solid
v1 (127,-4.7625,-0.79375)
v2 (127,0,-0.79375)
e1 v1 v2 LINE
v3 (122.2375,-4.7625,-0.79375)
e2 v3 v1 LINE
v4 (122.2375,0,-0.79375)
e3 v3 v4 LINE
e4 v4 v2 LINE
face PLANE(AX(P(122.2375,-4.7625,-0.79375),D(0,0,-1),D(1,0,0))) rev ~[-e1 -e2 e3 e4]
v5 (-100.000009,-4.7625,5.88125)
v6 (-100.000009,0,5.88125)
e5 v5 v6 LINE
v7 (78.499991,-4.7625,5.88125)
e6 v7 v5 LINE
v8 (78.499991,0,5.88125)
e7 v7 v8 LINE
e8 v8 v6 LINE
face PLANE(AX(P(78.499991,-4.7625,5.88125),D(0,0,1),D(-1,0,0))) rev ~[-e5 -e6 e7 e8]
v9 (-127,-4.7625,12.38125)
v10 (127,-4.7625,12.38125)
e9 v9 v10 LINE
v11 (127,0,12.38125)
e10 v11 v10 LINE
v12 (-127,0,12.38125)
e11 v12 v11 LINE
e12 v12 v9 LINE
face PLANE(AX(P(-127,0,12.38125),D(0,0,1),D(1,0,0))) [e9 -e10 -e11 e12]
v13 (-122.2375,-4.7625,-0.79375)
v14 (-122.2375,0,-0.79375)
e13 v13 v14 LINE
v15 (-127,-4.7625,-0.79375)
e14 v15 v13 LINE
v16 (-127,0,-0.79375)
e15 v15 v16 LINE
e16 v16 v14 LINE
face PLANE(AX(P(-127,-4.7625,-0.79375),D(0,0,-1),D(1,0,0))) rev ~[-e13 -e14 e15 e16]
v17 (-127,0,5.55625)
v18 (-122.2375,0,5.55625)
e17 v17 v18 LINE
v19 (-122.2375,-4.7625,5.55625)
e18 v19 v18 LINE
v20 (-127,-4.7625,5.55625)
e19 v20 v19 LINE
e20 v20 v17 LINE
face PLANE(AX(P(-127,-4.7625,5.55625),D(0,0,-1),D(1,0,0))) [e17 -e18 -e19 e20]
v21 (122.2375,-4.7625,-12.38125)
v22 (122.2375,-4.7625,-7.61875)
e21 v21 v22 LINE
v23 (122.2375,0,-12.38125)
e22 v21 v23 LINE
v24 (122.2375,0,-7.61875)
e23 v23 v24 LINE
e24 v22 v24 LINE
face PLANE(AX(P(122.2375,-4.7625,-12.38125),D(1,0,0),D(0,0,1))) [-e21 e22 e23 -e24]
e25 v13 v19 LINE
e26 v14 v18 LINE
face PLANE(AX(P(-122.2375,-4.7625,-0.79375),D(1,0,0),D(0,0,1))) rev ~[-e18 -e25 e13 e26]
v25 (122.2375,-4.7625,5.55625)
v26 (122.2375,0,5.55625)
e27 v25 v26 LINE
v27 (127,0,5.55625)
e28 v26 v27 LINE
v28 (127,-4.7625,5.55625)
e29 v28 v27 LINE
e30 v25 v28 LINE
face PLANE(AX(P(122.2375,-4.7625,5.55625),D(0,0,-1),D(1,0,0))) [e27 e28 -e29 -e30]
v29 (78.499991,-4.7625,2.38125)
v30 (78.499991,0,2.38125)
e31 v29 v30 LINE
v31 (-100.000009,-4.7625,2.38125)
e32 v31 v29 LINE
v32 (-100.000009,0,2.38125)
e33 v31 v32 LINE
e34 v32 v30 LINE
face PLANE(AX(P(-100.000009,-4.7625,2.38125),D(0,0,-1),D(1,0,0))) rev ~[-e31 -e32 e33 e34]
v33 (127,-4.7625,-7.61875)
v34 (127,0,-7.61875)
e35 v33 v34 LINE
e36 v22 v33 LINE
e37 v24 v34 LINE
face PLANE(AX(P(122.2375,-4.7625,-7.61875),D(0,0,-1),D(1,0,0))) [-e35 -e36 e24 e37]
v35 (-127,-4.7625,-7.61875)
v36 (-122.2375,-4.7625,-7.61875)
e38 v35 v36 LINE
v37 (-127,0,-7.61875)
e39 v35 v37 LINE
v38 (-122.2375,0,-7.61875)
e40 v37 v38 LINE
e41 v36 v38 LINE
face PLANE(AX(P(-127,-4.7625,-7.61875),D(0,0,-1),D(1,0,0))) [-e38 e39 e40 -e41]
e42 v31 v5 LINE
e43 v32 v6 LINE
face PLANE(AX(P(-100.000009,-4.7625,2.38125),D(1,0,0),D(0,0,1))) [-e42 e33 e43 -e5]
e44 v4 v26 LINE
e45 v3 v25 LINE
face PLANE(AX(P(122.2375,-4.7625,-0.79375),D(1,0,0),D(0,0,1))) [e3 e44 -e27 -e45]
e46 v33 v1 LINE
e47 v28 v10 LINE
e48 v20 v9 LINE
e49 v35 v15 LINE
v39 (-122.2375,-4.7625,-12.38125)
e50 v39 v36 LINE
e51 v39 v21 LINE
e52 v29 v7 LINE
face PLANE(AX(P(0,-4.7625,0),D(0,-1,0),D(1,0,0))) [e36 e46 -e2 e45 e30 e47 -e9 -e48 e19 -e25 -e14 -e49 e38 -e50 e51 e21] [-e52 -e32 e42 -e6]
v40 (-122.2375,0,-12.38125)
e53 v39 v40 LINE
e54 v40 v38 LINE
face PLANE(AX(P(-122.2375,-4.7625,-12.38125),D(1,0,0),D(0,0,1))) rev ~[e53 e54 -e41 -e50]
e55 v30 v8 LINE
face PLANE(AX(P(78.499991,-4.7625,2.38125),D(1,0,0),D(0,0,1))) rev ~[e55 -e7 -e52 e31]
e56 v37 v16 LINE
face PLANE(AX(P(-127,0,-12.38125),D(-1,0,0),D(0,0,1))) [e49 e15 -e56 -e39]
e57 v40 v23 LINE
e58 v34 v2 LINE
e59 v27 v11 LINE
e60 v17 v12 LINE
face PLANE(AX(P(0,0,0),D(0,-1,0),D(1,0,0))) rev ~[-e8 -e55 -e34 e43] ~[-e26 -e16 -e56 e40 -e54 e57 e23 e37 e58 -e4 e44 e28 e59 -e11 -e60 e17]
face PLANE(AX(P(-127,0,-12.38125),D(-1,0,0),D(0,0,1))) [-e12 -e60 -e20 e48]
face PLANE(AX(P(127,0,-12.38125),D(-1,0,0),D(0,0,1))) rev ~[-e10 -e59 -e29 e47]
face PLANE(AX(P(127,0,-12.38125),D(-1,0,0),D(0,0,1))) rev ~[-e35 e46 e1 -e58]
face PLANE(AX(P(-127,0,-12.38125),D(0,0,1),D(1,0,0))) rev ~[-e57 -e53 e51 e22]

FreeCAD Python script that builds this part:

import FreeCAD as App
import Part
import Sketcher
Q = App.Units.Quantity

doc = App.newDocument("Part")
body = doc.addObject("PartDesign::Body", "Body")

sketch1 = body.newObject("Sketcher::SketchObject", "Sketch")
sketch1.AttachmentSupport = (doc.getObject("XZ_Plane"), [""])
sketch1.MapMode = "FlatFace"
sketch1.addGeometry([
    Part.LineSegment(App.Vector(-127, 12, 0), App.Vector(-127, -12, 0)),
    Part.LineSegment(App.Vector(-127, -12, 0), App.Vector(127, -12, 0)),
    Part.LineSegment(App.Vector(127, -12, 0), App.Vector(127, 12, 0)),
    Part.LineSegment(App.Vector(127, 12, 0), App.Vector(-127, 12, 0)),
], False)
sketch1.addConstraint([
    Sketcher.Constraint("Coincident", 0, 2, 1, 1),
    Sketcher.Constraint("Coincident", 1, 2, 2, 1),
    Sketcher.Constraint("Coincident", 2, 2, 3, 1),
    Sketcher.Constraint("Coincident", 3, 2, 0, 1),
    Sketcher.Constraint("Vertical", 0),
    Sketcher.Constraint("Horizontal", 1),
    Sketcher.Constraint("Vertical", 2),
    Sketcher.Constraint("Horizontal", 3),
    Sketcher.Constraint("Symmetric", 0, 2, 2, 2, -1, 1),
    Sketcher.Constraint("DistanceX", 1, 1, 1, 2, Q("10 in")),
    Sketcher.Constraint("DistanceY", 0, 2, 0, 1, 24.7625),
])
pad1 = body.newObject("PartDesign::Pad", "Pad")
pad1.Profile = sketch1
pad1.Length = Q("0.1875 in")

sketch2 = body.newObject("Sketcher::SketchObject", "Sketch001")
sketch2.AttachmentSupport = (doc.getObject("XZ_Plane"), [""])
sketch2.MapMode = "FlatFace"
sketch2.AttachmentOffset = App.Placement(App.Vector(0, 0, 0.1875 * 25.4), App.Rotation())
sketch2.addGeometry([
    Part.LineSegment(App.Vector(-127, 5.6, 0), App.Vector(-127, -0.8, 0)),
    Part.LineSegment(App.Vector(-127, -0.8, 0), App.Vector(-122.2, -0.8, 0)),
    Part.LineSegment(App.Vector(-122.2, -0.8, 0), App.Vector(-122.2, 5.6, 0)),
    Part.LineSegment(App.Vector(-122.2, 5.6, 0), App.Vector(-127, 5.6, 0)),
    Part.LineSegment(App.Vector(122.2, 5.6, 0), App.Vector(122.2, -0.8, 0)),
    Part.LineSegment(App.Vector(122.2, -0.8, 0), App.Vector(127, -0.8, 0)),
    Part.LineSegment(App.Vector(127, -0.8, 0), App.Vector(127, 5.6, 0)),
    Part.LineSegment(App.Vector(127, 5.6, 0), App.Vector(122.2, 5.6, 0)),
], False)
sketch2.addConstraint([
    Sketcher.Constraint("Coincident", 0, 2, 1, 1),
    Sketcher.Constraint("Coincident", 1, 2, 2, 1),
    Sketcher.Constraint("Coincident", 2, 2, 3, 1),
    Sketcher.Constraint("Coincident", 3, 2, 0, 1),
    Sketcher.Constraint("Coincident", 4, 2, 5, 1),
    Sketcher.Constraint("Coincident", 5, 2, 6, 1),
    Sketcher.Constraint("Coincident", 6, 2, 7, 1),
    Sketcher.Constraint("Coincident", 7, 2, 4, 1),
    Sketcher.Constraint("Vertical", 0),
    Sketcher.Constraint("Horizontal", 1),
    Sketcher.Constraint("Vertical", 2),
    Sketcher.Constraint("Horizontal", 3),
    Sketcher.Constraint("Vertical", 4),
    Sketcher.Constraint("Horizontal", 5),
    Sketcher.Constraint("Vertical", 6),
    Sketcher.Constraint("Horizontal", 7),
    Sketcher.Constraint("Symmetric", 1, 2, 4, 2, -2),
    Sketcher.Constraint("Symmetric", 3, 2, 6, 2, -2),
    Sketcher.Constraint("DistanceX", 0, 2, -1, 1, Q("5 in")),
    Sketcher.Constraint("DistanceY", 0, 2, 0, 1, Q("0.25 in")),
    Sketcher.Constraint("DistanceX", 1, 1, 1, 2, Q("0.1875 in")),
    Sketcher.Constraint("DistanceY", 0, 2, -1, 1, Q("0.03125 in")),
])
pocket1 = body.newObject("PartDesign::Pocket", "Pocket")
pocket1.Profile = sketch2
pocket1.Length = Q("1 in")

sketch3 = body.newObject("Sketcher::SketchObject", "Sketch002")
sketch3.AttachmentSupport = (doc.getObject("XZ_Plane"), [""])
sketch3.MapMode = "FlatFace"
sketch3.AttachmentOffset = App.Placement(App.Vector(0, 0, 0.1875 * 25.4), App.Rotation())
sketch3.addGeometry([
    Part.LineSegment(App.Vector(122.2, -7.6, 0), App.Vector(122.2, -12.4, 0)),
    Part.LineSegment(App.Vector(122.2, -12.4, 0), App.Vector(127, -12.4, 0)),
    Part.LineSegment(App.Vector(127, -12.4, 0), App.Vector(127, -7.6, 0)),
    Part.LineSegment(App.Vector(127, -7.6, 0), App.Vector(122.2, -7.6, 0)),
    Part.LineSegment(App.Vector(-127, -7.6, 0), App.Vector(-127, -12.4, 0)),
    Part.LineSegment(App.Vector(-127, -12.4, 0), App.Vector(-122.2, -12.4, 0)),
    Part.LineSegment(App.Vector(-122.2, -12.4, 0), App.Vector(-122.2, -7.6, 0)),
    Part.LineSegment(App.Vector(-122.2, -7.6, 0), App.Vector(-127, -7.6, 0)),
], False)
sketch3.addConstraint([
    Sketcher.Constraint("Coincident", 0, 2, 1, 1),
    Sketcher.Constraint("Coincident", 1, 2, 2, 1),
    Sketcher.Constraint("Coincident", 2, 2, 3, 1),
    Sketcher.Constraint("Coincident", 3, 2, 0, 1),
    Sketcher.Constraint("Coincident", 4, 2, 5, 1),
    Sketcher.Constraint("Coincident", 5, 2, 6, 1),
    Sketcher.Constraint("Coincident", 6, 2, 7, 1),
    Sketcher.Constraint("Coincident", 7, 2, 4, 1),
    Sketcher.Constraint("Vertical", 0),
    Sketcher.Constraint("Horizontal", 1),
    Sketcher.Constraint("Vertical", 2),
    Sketcher.Constraint("Horizontal", 3),
    Sketcher.Constraint("Vertical", 4),
    Sketcher.Constraint("Horizontal", 5),
    Sketcher.Constraint("Vertical", 6),
    Sketcher.Constraint("Horizontal", 7),
    Sketcher.Constraint("Symmetric", 1, 2, 4, 2, -2),
    Sketcher.Constraint("Symmetric", 3, 2, 6, 2, -2),
    Sketcher.Constraint("Equal", 7, 0),
    Sketcher.Constraint("DistanceX", -1, 1, 1, 2, Q("5 in")),
    Sketcher.Constraint("DistanceX", 1, 1, 1, 2, Q("0.1875 in")),
    Sketcher.Constraint("DistanceY", 0, 2, -1, 1, 12.38125),
])
pocket2 = body.newObject("PartDesign::Pocket", "Pocket001")
pocket2.Profile = sketch3
pocket2.Length = Q("1 in")

sketch4 = body.newObject("Sketcher::SketchObject", "Sketch003")
sketch4.AttachmentSupport = (doc.getObject("XZ_Plane"), [""])
sketch4.MapMode = "FlatFace"
sketch4.AttachmentOffset = App.Placement(App.Vector(0, 0, 0.1875 * 25.4), App.Rotation())
sketch4.addGeometry([
    Part.LineSegment(App.Vector(-100, 5.9, 0), App.Vector(-100, 2.4, 0)),
    Part.LineSegment(App.Vector(-100, 2.4, 0), App.Vector(78.5, 2.4, 0)),
    Part.LineSegment(App.Vector(78.5, 2.4, 0), App.Vector(78.5, 5.9, 0)),
    Part.LineSegment(App.Vector(78.5, 5.9, 0), App.Vector(-100, 5.9, 0)),
], False)
sketch4.addConstraint([
    Sketcher.Constraint("Coincident", 0, 2, 1, 1),
    Sketcher.Constraint("Coincident", 1, 2, 2, 1),
    Sketcher.Constraint("Coincident", 2, 2, 3, 1),
    Sketcher.Constraint("Coincident", 3, 2, 0, 1),
    Sketcher.Constraint("Vertical", 0),
    Sketcher.Constraint("Horizontal", 1),
    Sketcher.Constraint("Vertical", 2),
    Sketcher.Constraint("Horizontal", 3),
    Sketcher.Constraint("DistanceY", -1, 1, 0, 2, Q("0.09375 in")),
    Sketcher.Constraint("DistanceX", 1, 1, 1, 2, 178.5),
    Sketcher.Constraint("DistanceY", 0, 2, 0, 1, 3.5),
    Sketcher.Constraint("DistanceX", 0, 2, -1, 1, 100.000009),
])
pocket3 = body.newObject("PartDesign::Pocket", "Pocket002")
pocket3.Profile = sketch4
pocket3.Length = Q("1 in")

doc.recompute()
